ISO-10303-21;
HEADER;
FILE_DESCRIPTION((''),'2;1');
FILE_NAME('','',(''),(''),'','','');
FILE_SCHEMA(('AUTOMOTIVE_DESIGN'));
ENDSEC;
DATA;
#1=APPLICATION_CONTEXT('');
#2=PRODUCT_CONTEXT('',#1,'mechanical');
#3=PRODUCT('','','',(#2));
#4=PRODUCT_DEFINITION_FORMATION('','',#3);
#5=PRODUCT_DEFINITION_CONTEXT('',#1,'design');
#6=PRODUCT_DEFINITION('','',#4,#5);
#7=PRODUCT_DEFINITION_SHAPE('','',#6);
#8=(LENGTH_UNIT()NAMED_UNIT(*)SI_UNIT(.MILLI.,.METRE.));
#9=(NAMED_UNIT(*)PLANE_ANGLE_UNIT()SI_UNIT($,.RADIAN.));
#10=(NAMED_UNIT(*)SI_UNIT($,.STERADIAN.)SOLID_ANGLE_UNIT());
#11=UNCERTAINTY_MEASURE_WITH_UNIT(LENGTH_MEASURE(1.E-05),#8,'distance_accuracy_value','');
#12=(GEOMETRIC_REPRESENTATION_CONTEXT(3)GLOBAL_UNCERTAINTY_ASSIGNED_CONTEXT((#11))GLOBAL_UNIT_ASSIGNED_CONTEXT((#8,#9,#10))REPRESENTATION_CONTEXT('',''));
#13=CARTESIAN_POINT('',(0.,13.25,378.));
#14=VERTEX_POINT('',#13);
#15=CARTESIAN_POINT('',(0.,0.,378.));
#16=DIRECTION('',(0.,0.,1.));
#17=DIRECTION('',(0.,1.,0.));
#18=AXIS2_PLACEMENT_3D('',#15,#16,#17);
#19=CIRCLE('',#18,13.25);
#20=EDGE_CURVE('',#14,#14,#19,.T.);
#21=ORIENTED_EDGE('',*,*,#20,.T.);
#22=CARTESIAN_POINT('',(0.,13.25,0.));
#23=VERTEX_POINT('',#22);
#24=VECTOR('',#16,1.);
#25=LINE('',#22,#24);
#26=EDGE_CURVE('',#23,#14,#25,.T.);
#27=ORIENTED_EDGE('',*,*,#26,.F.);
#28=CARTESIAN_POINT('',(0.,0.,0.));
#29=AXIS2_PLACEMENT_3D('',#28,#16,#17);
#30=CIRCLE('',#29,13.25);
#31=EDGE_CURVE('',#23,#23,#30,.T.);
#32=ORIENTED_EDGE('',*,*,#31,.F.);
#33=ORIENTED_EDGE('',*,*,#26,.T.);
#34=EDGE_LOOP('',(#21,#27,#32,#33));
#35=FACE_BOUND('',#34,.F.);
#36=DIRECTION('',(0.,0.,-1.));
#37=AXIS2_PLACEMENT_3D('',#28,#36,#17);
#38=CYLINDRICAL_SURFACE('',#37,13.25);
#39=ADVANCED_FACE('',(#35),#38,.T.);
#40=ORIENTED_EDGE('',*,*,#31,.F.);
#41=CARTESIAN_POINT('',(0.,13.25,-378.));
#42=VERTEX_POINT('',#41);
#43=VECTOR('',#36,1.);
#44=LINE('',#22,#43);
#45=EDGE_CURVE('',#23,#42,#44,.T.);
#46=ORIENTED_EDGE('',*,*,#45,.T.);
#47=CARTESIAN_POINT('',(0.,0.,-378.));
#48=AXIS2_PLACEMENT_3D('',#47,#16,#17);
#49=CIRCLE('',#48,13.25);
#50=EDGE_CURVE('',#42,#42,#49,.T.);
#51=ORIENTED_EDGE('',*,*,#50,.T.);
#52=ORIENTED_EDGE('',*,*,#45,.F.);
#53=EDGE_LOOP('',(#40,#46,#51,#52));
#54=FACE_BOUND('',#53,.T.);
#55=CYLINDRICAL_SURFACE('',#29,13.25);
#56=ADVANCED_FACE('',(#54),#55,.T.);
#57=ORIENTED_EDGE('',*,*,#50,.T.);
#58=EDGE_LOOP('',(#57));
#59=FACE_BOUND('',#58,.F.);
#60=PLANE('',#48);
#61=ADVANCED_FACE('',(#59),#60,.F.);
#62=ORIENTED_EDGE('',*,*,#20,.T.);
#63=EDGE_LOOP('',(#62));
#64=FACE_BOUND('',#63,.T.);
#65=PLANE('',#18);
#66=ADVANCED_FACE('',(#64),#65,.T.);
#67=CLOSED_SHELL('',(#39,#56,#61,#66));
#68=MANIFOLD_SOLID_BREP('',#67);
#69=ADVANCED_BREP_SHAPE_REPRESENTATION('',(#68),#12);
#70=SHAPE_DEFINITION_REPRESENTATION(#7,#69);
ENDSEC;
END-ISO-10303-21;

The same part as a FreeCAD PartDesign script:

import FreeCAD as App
import Part
import Sketcher
from FreeCAD import Vector
Q = App.Units.Quantity

doc = App.newDocument("Part")
params = doc.addObject("Spreadsheet::Sheet", "Params")
for row, (alias, value) in enumerate([
    ("sketch1_diameter", "26.5 mm"),
    ("pad1_length", "756 mm"),
], start=1):
    params.set(f"A{row}", alias)
    params.set(f"B{row}", "=" + value)
    params.setAlias(f"B{row}", alias)

body = doc.addObject("PartDesign::Body", "Body")

# Sketch on XY plane
sketch1 = body.newObject("Sketcher::SketchObject", "Sketch")
sketch1.AttachmentSupport = (doc.getObject("XY_Plane"), [""])
sketch1.MapMode = "FlatFace"
sketch1.addGeometry(Part.Circle(Vector(0, 0, 0), Vector(0, 0, 1), 13), False)
sketch1.addConstraint([
    Sketcher.Constraint("Coincident", 0, 3, -1, 1),
    Sketcher.Constraint("Diameter", 0, Q("26.5 mm")),
])
sketch1.setExpression("Constraints[1]", "Params.sketch1_diameter")
pad1 = body.newObject("PartDesign::Pad", "Pad")
pad1.Profile = sketch1
pad1.setExpression("Length", "Params.pad1_length")
pad1.Midplane = True

doc.recompute()
